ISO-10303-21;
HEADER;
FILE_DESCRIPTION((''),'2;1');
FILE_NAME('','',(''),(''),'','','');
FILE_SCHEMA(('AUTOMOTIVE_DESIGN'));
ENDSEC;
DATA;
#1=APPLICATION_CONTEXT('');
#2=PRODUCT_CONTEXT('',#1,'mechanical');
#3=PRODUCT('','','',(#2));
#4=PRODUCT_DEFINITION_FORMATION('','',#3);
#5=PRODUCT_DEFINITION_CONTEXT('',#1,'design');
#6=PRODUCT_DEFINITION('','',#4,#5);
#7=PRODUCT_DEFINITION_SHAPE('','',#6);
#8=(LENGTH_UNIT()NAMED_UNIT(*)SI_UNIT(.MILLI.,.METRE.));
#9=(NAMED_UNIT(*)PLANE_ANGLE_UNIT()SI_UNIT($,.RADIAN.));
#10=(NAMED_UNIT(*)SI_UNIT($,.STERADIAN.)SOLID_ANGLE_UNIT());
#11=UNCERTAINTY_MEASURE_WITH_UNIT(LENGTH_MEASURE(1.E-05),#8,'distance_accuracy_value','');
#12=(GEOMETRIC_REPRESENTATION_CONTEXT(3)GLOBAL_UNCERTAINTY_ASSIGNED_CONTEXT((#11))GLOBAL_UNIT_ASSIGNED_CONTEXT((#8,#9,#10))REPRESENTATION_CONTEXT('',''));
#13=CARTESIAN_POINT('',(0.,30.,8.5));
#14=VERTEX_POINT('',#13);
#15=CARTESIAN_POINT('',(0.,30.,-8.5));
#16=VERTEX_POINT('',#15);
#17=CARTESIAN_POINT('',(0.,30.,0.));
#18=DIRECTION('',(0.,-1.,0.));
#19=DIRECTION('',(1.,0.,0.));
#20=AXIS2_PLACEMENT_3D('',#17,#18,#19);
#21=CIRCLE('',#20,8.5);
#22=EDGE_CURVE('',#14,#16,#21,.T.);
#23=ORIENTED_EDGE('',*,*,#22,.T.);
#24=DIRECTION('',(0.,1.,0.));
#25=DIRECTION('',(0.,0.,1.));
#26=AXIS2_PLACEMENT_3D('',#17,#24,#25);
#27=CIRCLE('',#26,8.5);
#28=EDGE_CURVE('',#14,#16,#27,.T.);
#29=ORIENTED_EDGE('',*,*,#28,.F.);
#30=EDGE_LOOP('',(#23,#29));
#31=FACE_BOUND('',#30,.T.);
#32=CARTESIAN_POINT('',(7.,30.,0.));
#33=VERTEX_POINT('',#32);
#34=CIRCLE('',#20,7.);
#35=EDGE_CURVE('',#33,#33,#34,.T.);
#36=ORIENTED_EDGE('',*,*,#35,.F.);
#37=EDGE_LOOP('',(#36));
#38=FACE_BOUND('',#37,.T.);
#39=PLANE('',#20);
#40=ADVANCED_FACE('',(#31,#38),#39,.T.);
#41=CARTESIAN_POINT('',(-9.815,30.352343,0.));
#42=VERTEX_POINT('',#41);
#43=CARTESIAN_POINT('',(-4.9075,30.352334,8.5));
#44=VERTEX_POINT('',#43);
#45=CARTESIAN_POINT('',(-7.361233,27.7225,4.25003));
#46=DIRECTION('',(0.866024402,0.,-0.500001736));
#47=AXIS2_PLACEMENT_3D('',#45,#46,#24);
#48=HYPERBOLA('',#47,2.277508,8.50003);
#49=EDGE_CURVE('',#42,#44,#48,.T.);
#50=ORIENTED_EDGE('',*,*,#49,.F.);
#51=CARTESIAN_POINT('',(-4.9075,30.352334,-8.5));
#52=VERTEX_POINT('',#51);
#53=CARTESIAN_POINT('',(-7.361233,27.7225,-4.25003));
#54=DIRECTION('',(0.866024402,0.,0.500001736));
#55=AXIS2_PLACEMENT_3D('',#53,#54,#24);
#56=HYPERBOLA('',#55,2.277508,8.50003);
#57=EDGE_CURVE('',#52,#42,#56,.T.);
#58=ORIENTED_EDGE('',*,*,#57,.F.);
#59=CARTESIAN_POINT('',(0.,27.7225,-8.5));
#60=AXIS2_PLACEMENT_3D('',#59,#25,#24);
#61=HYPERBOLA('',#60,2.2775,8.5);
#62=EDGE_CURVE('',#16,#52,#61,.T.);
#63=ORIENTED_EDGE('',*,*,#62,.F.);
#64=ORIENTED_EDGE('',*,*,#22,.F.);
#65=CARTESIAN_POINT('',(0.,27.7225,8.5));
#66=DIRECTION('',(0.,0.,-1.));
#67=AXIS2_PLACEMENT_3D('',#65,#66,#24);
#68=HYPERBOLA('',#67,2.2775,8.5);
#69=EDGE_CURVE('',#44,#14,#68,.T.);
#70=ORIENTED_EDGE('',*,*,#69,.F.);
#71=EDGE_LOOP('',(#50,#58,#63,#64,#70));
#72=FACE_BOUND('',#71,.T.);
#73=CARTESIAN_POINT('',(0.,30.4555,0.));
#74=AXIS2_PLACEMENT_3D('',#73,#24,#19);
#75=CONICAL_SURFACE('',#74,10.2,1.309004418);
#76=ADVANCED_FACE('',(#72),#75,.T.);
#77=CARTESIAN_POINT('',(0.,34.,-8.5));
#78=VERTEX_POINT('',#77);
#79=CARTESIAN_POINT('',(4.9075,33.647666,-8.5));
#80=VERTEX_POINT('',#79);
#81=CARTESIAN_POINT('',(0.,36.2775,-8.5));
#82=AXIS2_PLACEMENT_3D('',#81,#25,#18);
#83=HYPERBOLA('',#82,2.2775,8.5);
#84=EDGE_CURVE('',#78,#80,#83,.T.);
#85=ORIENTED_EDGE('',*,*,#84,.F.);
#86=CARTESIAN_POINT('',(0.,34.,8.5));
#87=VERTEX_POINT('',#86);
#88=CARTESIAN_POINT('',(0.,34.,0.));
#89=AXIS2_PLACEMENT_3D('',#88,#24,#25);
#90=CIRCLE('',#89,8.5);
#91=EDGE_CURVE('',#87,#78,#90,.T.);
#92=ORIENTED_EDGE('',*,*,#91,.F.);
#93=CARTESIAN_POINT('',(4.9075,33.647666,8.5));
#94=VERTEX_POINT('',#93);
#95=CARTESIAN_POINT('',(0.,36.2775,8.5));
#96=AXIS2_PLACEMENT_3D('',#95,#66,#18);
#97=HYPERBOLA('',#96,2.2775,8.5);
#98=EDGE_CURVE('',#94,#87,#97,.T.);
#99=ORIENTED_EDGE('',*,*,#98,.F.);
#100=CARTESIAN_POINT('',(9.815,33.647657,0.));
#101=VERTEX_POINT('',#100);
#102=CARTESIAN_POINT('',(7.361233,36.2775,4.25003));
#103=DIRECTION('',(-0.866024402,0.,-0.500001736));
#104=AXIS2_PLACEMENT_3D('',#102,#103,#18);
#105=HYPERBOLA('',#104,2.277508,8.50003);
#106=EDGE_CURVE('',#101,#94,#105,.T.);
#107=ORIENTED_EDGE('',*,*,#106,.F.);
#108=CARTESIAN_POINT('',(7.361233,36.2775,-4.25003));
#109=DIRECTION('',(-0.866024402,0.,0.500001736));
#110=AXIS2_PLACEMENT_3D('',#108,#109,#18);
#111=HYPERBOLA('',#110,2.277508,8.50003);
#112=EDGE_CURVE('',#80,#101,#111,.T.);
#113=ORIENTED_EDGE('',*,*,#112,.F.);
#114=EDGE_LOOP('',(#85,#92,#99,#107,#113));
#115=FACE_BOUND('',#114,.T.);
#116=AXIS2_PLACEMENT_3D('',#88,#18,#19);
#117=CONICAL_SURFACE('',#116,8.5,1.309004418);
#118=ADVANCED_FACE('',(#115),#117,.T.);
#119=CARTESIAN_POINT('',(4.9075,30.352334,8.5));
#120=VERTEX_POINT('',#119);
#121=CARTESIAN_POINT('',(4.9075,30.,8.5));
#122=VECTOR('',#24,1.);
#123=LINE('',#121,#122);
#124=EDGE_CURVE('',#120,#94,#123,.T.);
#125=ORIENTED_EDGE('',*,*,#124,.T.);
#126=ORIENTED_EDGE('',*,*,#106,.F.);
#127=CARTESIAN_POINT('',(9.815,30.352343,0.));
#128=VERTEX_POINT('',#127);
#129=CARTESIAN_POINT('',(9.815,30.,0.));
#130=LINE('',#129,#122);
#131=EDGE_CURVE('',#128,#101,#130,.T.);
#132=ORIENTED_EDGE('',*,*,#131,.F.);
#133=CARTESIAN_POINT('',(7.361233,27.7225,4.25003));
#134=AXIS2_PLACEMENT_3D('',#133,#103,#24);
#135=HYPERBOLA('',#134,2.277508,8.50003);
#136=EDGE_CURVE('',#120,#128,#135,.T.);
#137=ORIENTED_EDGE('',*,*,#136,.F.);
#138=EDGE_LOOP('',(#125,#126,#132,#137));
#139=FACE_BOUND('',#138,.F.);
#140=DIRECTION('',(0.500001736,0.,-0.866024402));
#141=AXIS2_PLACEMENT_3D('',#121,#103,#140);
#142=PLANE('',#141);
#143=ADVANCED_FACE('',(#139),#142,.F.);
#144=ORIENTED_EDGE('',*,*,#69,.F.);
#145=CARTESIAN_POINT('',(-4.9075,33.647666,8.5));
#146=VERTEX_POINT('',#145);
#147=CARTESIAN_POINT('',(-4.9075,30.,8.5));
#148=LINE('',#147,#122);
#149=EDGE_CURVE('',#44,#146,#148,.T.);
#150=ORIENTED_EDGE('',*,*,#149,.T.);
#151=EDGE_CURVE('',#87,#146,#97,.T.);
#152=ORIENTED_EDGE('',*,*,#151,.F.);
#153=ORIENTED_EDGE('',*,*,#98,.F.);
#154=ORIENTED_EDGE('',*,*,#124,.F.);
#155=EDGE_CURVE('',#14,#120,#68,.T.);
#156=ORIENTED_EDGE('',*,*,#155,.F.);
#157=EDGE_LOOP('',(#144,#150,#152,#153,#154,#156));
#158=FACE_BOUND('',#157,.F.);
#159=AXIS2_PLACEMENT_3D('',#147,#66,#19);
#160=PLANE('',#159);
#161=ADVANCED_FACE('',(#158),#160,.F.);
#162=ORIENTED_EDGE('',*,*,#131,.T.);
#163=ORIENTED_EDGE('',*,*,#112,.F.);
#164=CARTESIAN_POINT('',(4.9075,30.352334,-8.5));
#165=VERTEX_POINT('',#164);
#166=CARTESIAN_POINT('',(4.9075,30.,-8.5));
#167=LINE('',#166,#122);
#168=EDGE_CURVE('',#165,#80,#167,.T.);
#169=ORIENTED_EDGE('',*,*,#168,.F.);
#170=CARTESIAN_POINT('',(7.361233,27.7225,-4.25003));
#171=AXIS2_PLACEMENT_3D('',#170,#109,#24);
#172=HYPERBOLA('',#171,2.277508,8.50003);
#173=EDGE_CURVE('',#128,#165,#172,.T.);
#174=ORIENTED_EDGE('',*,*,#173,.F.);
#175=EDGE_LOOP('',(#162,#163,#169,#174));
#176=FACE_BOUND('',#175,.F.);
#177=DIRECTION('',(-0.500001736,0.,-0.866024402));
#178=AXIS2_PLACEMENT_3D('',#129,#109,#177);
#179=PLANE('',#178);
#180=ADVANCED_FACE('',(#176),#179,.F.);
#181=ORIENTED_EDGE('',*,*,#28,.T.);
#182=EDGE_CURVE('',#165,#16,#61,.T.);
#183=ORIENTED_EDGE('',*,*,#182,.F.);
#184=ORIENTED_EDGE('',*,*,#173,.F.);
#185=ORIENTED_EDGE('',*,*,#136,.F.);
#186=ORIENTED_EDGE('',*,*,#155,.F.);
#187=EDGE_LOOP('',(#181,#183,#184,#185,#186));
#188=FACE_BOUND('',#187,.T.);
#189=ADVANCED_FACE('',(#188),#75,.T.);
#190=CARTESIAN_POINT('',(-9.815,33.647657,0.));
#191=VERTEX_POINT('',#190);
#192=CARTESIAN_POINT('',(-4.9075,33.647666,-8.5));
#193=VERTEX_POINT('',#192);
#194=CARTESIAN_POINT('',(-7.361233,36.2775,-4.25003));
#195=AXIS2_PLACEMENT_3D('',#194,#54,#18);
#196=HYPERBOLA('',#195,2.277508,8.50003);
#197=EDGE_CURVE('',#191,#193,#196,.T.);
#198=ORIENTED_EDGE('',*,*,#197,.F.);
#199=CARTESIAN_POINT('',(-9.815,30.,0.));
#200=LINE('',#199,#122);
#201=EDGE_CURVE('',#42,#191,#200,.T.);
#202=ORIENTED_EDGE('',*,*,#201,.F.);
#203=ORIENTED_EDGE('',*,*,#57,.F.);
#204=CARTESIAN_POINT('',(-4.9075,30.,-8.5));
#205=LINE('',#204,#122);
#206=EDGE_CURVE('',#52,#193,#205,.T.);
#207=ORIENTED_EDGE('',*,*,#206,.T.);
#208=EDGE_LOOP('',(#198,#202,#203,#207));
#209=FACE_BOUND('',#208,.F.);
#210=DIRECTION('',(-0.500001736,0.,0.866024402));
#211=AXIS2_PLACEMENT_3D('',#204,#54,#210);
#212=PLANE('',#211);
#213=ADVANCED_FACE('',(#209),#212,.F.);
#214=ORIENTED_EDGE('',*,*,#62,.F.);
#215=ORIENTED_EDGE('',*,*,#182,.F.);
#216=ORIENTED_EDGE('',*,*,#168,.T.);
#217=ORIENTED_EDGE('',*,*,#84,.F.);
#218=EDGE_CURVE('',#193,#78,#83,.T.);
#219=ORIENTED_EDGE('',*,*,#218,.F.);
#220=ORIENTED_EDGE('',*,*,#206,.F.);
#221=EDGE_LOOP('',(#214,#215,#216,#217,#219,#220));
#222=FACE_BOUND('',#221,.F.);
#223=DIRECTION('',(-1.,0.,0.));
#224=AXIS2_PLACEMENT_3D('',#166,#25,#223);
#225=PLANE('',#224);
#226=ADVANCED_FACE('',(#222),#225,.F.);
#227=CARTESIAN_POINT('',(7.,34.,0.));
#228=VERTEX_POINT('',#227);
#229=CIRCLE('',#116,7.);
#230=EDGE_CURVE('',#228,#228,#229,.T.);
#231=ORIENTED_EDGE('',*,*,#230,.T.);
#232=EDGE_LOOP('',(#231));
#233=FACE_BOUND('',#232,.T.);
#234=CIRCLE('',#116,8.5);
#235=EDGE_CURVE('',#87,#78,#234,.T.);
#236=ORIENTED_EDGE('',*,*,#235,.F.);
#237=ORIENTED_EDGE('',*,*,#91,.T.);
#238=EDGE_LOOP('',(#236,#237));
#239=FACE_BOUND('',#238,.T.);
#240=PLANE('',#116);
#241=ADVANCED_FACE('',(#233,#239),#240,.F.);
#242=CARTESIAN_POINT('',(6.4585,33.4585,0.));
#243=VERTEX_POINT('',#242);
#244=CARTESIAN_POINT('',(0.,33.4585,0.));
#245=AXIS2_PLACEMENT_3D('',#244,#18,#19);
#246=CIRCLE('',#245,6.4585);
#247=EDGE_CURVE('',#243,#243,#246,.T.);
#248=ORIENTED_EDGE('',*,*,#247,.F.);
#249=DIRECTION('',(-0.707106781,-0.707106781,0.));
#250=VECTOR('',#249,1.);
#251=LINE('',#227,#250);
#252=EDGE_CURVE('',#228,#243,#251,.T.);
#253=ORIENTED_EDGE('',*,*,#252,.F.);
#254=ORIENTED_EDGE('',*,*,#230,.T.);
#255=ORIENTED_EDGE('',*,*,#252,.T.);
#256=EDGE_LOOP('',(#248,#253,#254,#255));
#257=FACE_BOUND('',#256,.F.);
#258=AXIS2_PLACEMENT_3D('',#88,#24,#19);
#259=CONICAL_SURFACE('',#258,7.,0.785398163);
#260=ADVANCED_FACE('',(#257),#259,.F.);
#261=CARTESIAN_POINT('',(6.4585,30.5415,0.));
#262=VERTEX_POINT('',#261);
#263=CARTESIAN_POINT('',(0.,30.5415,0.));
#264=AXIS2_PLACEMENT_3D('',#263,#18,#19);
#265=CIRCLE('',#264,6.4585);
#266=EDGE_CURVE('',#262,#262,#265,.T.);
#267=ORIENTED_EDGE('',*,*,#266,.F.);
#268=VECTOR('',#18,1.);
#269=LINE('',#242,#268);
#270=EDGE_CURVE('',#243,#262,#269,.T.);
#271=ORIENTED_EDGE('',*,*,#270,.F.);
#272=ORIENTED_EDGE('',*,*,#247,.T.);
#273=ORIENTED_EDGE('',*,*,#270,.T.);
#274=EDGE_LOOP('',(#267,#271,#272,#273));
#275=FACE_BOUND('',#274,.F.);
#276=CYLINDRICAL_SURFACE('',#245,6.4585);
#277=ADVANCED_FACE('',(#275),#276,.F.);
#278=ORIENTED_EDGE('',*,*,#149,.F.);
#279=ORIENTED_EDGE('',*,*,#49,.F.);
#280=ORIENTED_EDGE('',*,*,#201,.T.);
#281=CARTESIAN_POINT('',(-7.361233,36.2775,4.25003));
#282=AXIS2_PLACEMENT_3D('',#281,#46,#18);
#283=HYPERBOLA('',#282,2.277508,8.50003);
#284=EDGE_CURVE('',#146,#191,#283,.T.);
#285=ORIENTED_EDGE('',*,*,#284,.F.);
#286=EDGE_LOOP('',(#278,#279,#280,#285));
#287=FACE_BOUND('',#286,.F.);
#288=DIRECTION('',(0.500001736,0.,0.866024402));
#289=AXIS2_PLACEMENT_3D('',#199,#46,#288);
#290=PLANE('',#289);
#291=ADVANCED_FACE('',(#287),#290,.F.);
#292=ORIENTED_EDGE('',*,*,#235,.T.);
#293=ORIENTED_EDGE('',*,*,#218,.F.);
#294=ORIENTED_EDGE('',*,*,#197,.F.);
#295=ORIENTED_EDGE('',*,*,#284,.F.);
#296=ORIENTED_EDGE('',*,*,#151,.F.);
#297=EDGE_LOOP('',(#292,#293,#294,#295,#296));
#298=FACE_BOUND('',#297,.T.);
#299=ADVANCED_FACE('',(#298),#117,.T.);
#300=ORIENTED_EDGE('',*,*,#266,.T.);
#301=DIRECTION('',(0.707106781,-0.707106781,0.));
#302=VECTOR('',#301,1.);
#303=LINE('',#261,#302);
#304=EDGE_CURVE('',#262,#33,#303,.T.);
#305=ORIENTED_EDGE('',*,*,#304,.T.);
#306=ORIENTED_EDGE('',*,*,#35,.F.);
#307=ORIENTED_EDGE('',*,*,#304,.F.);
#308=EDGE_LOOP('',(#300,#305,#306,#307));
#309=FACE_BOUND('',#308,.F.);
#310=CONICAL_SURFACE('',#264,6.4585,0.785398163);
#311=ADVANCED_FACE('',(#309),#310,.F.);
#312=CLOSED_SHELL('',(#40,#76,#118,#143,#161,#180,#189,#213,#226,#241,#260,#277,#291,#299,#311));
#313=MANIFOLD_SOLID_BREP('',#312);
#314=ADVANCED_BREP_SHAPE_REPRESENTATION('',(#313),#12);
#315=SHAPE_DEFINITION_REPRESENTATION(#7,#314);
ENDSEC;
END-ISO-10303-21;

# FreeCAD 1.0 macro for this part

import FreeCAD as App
import Part
import Sketcher
from FreeCAD import Vector
Q = App.Units.Quantity

doc = App.newDocument("Part")
body = doc.addObject("PartDesign::Body", "Body")

sketch1 = body.newObject("Sketcher::SketchObject", "Sketch")
sketch1.AttachmentSupport = (doc.getObject("XY_Plane"), [""])
sketch1.MapMode = "FlatFace"
sketch1.addGeometry([
    Part.LineSegment(Vector(0, 34, 0), Vector(0, 30, 0)),
    Part.LineSegment(Vector(0, 30, 0), Vector(8.5, 30, 0)),
    Part.LineSegment(Vector(8.5, 30, 0), Vector(10.2, 30.5, 0)),
    Part.LineSegment(Vector(10.2, 30.5, 0), Vector(10.2, 33.5, 0)),
    Part.LineSegment(Vector(10.2, 33.5, 0), Vector(8.5, 34, 0)),
    Part.LineSegment(Vector(8.5, 34, 0), Vector(0, 34, 0)),
], False)
sketch1.addConstraint([
    Sketcher.Constraint("Coincident", 0, 2, 1, 1),
    Sketcher.Constraint("Coincident", 1, 2, 2, 1),
    Sketcher.Constraint("Coincident", 2, 2, 3, 1),
    Sketcher.Constraint("Coincident", 3, 2, 4, 1),
    Sketcher.Constraint("Coincident", 4, 2, 5, 1),
    Sketcher.Constraint("Coincident", 5, 2, 0, 1),
    Sketcher.Constraint("Vertical", 0),
    Sketcher.Constraint("Horizontal", 1),
    Sketcher.Constraint("Vertical", 3),
    Sketcher.Constraint("Horizontal", 5),
    Sketcher.Constraint("PointOnObject", 0, 2, -2),
    Sketcher.Constraint("Vertical", 1, 2, 4, 2),
    Sketcher.Constraint("Equal", 2, 4),
    Sketcher.Constraint("DistanceY", 0, 2, 0, 1, 4.0),
    Sketcher.Constraint("Angle", 2, Q("14.9996 deg")),
    Sketcher.Constraint("DistanceX", 1, 1, 1, 2, 8.5),
    Sketcher.Constraint("DistanceY", -1, 1, 0, 2, 30.0),
    Sketcher.Constraint("DistanceX", -1, 1, 2, 2, 10.2),
])
revolution = body.newObject("PartDesign::Revolution", "Revolution")
revolution.Profile = sketch1
revolution.ReferenceAxis = (sketch1, ["V_Axis"])
revolution.Angle = 360

sketch2 = body.newObject("Sketcher::SketchObject", "Sketch001")
sketch2.AttachmentSupport = (doc.getObject("XY_Plane"), [""])
sketch2.MapMode = "FlatFace"
sketch2.addGeometry([
    Part.LineSegment(Vector(0, 34, 0), Vector(0, 30, 0)),
    Part.LineSegment(Vector(0, 30, 0), Vector(7, 30, 0)),
    Part.LineSegment(Vector(7, 30, 0), Vector(6.5, 30.5, 0)),
    Part.LineSegment(Vector(6.5, 30.5, 0), Vector(6.5, 33.5, 0)),
    Part.LineSegment(Vector(6.5, 33.5, 0), Vector(7, 34, 0)),
    Part.LineSegment(Vector(7, 34, 0), Vector(0, 34, 0)),
], False)
sketch2.addConstraint([
    Sketcher.Constraint("Coincident", 0, 2, 1, 1),
    Sketcher.Constraint("Coincident", 1, 2, 2, 1),
    Sketcher.Constraint("Coincident", 2, 2, 3, 1),
    Sketcher.Constraint("Coincident", 3, 2, 4, 1),
    Sketcher.Constraint("Coincident", 4, 2, 5, 1),
    Sketcher.Constraint("Coincident", 5, 2, 0, 1),
    Sketcher.Constraint("Vertical", 0),
    Sketcher.Constraint("Horizontal", 1),
    Sketcher.Constraint("Vertical", 3),
    Sketcher.Constraint("Horizontal", 5),
    Sketcher.Constraint("PointOnObject", 0, 2, -2),
    Sketcher.Constraint("Perpendicular", 2, 4),
    Sketcher.Constraint("Vertical", 1, 2, 4, 2),
    Sketcher.Constraint("Equal", 2, 4),
    Sketcher.Constraint("DistanceX", 1, 1, 1, 2, 7.0),
    Sketcher.Constraint("DistanceY", 0, 2, 0, 1, 4.0),
    Sketcher.Constraint("DistanceY", -1, 1, 0, 2, 30.0),
    Sketcher.Constraint("DistanceY", 3, 1, 3, 2, 2.917),
])
groove = body.newObject("PartDesign::Groove", "Groove")
groove.Profile = sketch2
groove.ReferenceAxis = (sketch2, ["V_Axis"])
groove.Angle = 360

sketch3 = body.newObject("Sketcher::SketchObject", "Sketch002")
sketch3.AttachmentSupport = (doc.getObject("XZ_Plane"), [""])
sketch3.MapMode = "FlatFace"
sketch3.AttachmentOffset = App.Placement(Vector(0, 0, -30), App.Rotation())
sketch3.addGeometry([
    Part.LineSegment(Vector(45, -45, 0), Vector(-45, -45, 0)),
    Part.LineSegment(Vector(-45, -45, 0), Vector(-45, 45, 0)),
    Part.LineSegment(Vector(-45, 45, 0), Vector(45, 45, 0)),
    Part.LineSegment(Vector(45, 45, 0), Vector(45, -45, 0)),
    Part.LineSegment(Vector(-5, 8, 0), Vector(-10, 0, 0)),
    Part.LineSegment(Vector(-10, 0, 0), Vector(-5, -8, 0)),
    Part.LineSegment(Vector(-5, -8, 0), Vector(5, -8, 0)),
    Part.LineSegment(Vector(5, -8, 0), Vector(10, 0, 0)),
    Part.LineSegment(Vector(10, 0, 0), Vector(5, 8, 0)),
    Part.LineSegment(Vector(5, 8, 0), Vector(-5, 8, 0)),
], False)
sketch3.addConstraint([
    Sketcher.Constraint("Coincident", 0, 2, 1, 1),
    Sketcher.Constraint("Coincident", 1, 2, 2, 1),
    Sketcher.Constraint("Coincident", 2, 2, 3, 1),
    Sketcher.Constraint("Coincident", 3, 2, 0, 1),
    Sketcher.Constraint("Coincident", 4, 2, 5, 1),
    Sketcher.Constraint("Coincident", 5, 2, 6, 1),
    Sketcher.Constraint("Coincident", 6, 2, 7, 1),
    Sketcher.Constraint("Coincident", 7, 2, 8, 1),
    Sketcher.Constraint("Coincident", 8, 2, 9, 1),
    Sketcher.Constraint("Coincident", 9, 2, 4, 1),
    Sketcher.Constraint("Horizontal", 0),
    Sketcher.Constraint("Vertical", 1),
    Sketcher.Constraint("Horizontal", 2),
    Sketcher.Constraint("Vertical", 3),
    Sketcher.Constraint("Horizontal", 6),
    Sketcher.Constraint("Horizontal", 9),
    Sketcher.Constraint("Symmetric", 0, 2, 2, 2, -1, 1),
    Sketcher.Constraint("Symmetric", 4, 2, 7, 2, -1, 1),
    Sketcher.Constraint("Symmetric", 5, 2, 8, 2, -1, 1),
    Sketcher.Constraint("PointOnObject", 4, 2, -1),
    Sketcher.Constraint("Parallel", 4, 7),
    Sketcher.Constraint("Vertical", 6, 2, 8, 2),
    Sketcher.Constraint("Equal", 2, 1),
    Sketcher.Constraint("DistanceX", 0, 2, 0, 1, 90.0),
    Sketcher.Constraint("Angle", 4, Q("-120 deg")),
    Sketcher.Constraint("DistanceY", 6, 2, 8, 2, 17.0),
    Sketcher.Constraint("DistanceX", 6, 1, 6, 2, 9.815),
])
pocket1 = body.newObject("PartDesign::Pocket", "Pocket")
pocket1.Profile = sketch3
pocket1.Length = 4

doc.recompute()
